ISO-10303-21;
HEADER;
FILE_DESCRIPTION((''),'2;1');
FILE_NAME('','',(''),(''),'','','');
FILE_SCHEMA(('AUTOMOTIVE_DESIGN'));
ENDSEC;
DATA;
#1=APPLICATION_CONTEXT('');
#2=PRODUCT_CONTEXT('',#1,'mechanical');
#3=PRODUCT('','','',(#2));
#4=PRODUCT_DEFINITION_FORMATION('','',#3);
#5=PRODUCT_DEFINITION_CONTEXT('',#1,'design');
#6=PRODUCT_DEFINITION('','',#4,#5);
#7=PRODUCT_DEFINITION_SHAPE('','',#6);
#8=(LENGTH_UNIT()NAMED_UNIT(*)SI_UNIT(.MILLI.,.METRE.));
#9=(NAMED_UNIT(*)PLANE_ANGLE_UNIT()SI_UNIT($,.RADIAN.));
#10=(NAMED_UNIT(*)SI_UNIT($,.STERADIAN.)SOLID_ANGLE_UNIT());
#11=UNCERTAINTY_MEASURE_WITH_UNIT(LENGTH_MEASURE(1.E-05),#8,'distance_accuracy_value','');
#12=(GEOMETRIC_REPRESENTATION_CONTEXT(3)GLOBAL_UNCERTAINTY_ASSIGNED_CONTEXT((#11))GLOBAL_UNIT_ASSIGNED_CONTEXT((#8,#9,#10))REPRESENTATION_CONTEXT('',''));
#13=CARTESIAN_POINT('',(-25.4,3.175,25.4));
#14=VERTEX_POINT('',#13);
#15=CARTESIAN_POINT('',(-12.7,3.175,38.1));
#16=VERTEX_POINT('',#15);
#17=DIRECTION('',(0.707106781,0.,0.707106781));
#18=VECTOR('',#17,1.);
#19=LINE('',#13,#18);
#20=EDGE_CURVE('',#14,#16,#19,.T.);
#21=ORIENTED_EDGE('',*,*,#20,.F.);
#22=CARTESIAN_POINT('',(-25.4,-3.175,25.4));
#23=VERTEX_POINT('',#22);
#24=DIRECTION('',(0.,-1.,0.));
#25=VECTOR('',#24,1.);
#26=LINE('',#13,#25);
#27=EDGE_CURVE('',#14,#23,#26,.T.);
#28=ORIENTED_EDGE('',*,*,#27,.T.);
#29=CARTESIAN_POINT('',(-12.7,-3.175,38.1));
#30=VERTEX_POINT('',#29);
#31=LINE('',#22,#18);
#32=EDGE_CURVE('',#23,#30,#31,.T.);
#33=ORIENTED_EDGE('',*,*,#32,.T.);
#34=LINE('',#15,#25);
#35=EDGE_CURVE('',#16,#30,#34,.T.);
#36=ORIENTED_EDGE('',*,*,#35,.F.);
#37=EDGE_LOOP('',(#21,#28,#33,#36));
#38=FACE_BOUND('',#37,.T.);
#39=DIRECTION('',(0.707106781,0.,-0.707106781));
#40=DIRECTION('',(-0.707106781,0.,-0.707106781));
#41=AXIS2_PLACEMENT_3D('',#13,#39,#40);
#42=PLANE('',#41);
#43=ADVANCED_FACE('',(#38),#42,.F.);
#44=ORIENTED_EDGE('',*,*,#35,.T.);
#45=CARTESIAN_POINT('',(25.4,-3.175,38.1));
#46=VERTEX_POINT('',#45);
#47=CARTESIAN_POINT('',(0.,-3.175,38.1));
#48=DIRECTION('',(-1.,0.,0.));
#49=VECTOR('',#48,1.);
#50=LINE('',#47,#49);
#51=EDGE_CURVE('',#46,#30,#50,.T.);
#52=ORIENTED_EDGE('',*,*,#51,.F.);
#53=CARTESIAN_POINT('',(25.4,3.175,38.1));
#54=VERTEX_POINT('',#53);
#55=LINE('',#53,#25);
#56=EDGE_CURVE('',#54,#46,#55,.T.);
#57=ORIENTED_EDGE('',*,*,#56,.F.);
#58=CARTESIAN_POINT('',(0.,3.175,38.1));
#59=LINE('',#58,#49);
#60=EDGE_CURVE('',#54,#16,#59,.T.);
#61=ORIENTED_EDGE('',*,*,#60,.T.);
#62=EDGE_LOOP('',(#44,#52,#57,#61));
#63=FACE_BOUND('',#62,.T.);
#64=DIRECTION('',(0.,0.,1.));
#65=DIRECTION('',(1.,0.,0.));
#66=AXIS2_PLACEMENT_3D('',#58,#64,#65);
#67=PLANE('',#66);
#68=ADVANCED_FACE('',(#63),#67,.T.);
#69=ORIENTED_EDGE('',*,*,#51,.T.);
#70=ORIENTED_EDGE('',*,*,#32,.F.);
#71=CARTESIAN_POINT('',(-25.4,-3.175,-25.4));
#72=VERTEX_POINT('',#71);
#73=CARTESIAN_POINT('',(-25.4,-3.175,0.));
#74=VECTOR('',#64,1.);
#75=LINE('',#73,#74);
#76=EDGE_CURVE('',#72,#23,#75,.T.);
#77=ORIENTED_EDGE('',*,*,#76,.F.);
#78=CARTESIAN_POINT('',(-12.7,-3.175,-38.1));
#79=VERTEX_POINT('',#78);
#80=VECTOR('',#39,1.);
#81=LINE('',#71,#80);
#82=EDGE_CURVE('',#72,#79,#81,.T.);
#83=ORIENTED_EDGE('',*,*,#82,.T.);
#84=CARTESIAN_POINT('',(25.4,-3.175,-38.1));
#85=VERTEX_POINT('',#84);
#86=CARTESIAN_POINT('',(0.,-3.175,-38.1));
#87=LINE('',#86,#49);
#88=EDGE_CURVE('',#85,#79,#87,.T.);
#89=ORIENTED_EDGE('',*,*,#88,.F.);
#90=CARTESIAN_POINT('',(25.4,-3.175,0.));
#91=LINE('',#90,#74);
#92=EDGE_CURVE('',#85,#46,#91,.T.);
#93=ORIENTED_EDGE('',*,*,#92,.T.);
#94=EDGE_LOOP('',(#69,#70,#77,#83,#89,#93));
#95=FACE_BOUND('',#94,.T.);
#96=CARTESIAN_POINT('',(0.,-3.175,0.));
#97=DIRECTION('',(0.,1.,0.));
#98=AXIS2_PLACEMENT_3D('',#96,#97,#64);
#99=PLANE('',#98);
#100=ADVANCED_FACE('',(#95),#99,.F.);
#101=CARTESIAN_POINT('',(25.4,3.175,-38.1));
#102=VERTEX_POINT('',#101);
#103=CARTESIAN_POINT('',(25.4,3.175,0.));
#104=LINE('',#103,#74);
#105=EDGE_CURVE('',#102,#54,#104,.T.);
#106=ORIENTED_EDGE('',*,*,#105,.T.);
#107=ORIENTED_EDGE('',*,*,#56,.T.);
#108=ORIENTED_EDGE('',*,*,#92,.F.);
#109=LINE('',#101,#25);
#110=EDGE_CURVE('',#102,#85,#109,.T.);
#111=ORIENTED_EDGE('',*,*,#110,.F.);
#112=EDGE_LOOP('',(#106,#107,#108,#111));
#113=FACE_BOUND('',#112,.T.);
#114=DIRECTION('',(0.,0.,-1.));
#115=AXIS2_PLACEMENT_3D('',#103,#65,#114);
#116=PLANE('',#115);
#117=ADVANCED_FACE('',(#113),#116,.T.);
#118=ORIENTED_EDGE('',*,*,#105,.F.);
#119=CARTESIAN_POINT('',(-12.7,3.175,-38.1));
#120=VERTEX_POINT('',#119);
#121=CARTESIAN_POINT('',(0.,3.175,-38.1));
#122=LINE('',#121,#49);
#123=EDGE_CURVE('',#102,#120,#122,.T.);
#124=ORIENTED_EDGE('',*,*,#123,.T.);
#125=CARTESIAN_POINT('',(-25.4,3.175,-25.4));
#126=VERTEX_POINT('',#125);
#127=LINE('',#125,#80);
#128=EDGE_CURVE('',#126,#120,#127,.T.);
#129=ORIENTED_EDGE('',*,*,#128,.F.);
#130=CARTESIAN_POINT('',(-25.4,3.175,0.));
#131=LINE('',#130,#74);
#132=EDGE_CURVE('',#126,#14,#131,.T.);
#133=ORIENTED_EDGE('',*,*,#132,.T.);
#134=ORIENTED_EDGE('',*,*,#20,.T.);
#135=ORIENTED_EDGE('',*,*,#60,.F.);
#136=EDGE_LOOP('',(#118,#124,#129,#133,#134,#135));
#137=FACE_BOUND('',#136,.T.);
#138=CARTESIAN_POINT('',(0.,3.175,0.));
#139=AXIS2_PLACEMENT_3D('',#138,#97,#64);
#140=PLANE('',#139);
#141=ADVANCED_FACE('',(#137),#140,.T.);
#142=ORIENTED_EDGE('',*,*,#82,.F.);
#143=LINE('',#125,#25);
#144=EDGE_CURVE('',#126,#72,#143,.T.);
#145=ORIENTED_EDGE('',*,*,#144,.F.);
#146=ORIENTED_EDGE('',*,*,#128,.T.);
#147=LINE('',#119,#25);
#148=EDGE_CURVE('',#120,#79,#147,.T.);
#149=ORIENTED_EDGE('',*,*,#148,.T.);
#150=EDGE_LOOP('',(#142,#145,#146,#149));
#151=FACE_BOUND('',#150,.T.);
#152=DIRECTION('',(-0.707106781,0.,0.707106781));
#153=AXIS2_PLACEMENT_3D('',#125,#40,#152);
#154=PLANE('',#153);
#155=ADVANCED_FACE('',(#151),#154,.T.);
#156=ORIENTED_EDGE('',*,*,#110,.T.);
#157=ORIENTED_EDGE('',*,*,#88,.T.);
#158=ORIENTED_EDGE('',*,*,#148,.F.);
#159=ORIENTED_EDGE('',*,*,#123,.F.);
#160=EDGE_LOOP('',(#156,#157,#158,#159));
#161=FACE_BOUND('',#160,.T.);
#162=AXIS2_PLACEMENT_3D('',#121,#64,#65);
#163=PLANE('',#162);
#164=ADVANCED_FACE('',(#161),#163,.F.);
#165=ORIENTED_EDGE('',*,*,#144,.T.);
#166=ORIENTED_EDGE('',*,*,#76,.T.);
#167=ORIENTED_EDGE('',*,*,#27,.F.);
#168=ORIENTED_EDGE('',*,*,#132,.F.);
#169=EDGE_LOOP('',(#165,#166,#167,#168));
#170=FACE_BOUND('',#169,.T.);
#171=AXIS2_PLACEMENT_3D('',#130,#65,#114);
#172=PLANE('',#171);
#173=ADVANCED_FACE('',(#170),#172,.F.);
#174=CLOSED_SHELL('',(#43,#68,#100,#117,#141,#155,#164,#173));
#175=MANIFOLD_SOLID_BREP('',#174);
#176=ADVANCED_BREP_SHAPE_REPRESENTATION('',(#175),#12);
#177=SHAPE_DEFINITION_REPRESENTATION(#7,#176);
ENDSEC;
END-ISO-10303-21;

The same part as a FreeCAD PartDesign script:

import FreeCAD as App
import Part
import Sketcher
from FreeCAD import Vector
Q = App.Units.Quantity

doc = App.newDocument("Part")
body = doc.addObject("PartDesign::Body", "Body")

sketch1 = body.newObject("Sketcher::SketchObject", "Sketch")
sketch1.AttachmentSupport = (doc.getObject("XZ_Plane"), [""])
sketch1.MapMode = "FlatFace"
sketch1.addGeometry(Part.LineSegment(Vector(-13, -38, 0), Vector(-25, -25, 0)), False)
sketch1.addGeometry(Part.LineSegment(Vector(-25, -25, 0), Vector(-25, 25, 0)), False)
sketch1.addGeometry(Part.LineSegment(Vector(-25, 25, 0), Vector(-13, 38, 0)), False)
sketch1.addGeometry(Part.LineSegment(Vector(-13, 38, 0), Vector(25, 38, 0)), False)
sketch1.addGeometry(Part.LineSegment(Vector(25, 38, 0), Vector(25, -38, 0)), False)
sketch1.addGeometry(Part.LineSegment(Vector(25, -38, 0), Vector(-13, -38, 0)), False)
sketch1.addConstraint(Sketcher.Constraint("Coincident", 0, 2, 1, 1))
sketch1.addConstraint(Sketcher.Constraint("Coincident", 1, 2, 2, 1))
sketch1.addConstraint(Sketcher.Constraint("Coincident", 2, 2, 3, 1))
sketch1.addConstraint(Sketcher.Constraint("Coincident", 3, 2, 4, 1))
sketch1.addConstraint(Sketcher.Constraint("Coincident", 4, 2, 5, 1))
sketch1.addConstraint(Sketcher.Constraint("Coincident", 5, 2, 0, 1))
sketch1.addConstraint(Sketcher.Constraint("Vertical", 1))
sketch1.addConstraint(Sketcher.Constraint("Horizontal", 3))
sketch1.addConstraint(Sketcher.Constraint("Vertical", 4))
sketch1.addConstraint(Sketcher.Constraint("Horizontal", 5))
sketch1.addConstraint(Sketcher.Constraint("Symmetric", 2, 2, 5, 2, -1))
sketch1.addConstraint(Sketcher.Constraint("Perpendicular", 0, 2))
sketch1.addConstraint(Sketcher.Constraint("Equal", 0, 2))
sketch1.addConstraint(Sketcher.Constraint("DistanceY", 1, 1, 1, 2, Q("2 in")))
sketch1.addConstraint(Sketcher.Constraint("DistanceY", 4, 2, 4, 1, Q("3 in")))
sketch1.addConstraint(Sketcher.Constraint("DistanceX", 3, 1, 3, 2, Q("1.5 in")))
sketch1.addConstraint(Sketcher.Constraint("DistanceX", 0, 2, -1, 1, Q("1 in")))
pad1 = body.newObject("PartDesign::Pad", "Pad")
pad1.Profile = sketch1
pad1.Length = Q("0.25 in")
pad1.Midplane = True

doc.recompute()
